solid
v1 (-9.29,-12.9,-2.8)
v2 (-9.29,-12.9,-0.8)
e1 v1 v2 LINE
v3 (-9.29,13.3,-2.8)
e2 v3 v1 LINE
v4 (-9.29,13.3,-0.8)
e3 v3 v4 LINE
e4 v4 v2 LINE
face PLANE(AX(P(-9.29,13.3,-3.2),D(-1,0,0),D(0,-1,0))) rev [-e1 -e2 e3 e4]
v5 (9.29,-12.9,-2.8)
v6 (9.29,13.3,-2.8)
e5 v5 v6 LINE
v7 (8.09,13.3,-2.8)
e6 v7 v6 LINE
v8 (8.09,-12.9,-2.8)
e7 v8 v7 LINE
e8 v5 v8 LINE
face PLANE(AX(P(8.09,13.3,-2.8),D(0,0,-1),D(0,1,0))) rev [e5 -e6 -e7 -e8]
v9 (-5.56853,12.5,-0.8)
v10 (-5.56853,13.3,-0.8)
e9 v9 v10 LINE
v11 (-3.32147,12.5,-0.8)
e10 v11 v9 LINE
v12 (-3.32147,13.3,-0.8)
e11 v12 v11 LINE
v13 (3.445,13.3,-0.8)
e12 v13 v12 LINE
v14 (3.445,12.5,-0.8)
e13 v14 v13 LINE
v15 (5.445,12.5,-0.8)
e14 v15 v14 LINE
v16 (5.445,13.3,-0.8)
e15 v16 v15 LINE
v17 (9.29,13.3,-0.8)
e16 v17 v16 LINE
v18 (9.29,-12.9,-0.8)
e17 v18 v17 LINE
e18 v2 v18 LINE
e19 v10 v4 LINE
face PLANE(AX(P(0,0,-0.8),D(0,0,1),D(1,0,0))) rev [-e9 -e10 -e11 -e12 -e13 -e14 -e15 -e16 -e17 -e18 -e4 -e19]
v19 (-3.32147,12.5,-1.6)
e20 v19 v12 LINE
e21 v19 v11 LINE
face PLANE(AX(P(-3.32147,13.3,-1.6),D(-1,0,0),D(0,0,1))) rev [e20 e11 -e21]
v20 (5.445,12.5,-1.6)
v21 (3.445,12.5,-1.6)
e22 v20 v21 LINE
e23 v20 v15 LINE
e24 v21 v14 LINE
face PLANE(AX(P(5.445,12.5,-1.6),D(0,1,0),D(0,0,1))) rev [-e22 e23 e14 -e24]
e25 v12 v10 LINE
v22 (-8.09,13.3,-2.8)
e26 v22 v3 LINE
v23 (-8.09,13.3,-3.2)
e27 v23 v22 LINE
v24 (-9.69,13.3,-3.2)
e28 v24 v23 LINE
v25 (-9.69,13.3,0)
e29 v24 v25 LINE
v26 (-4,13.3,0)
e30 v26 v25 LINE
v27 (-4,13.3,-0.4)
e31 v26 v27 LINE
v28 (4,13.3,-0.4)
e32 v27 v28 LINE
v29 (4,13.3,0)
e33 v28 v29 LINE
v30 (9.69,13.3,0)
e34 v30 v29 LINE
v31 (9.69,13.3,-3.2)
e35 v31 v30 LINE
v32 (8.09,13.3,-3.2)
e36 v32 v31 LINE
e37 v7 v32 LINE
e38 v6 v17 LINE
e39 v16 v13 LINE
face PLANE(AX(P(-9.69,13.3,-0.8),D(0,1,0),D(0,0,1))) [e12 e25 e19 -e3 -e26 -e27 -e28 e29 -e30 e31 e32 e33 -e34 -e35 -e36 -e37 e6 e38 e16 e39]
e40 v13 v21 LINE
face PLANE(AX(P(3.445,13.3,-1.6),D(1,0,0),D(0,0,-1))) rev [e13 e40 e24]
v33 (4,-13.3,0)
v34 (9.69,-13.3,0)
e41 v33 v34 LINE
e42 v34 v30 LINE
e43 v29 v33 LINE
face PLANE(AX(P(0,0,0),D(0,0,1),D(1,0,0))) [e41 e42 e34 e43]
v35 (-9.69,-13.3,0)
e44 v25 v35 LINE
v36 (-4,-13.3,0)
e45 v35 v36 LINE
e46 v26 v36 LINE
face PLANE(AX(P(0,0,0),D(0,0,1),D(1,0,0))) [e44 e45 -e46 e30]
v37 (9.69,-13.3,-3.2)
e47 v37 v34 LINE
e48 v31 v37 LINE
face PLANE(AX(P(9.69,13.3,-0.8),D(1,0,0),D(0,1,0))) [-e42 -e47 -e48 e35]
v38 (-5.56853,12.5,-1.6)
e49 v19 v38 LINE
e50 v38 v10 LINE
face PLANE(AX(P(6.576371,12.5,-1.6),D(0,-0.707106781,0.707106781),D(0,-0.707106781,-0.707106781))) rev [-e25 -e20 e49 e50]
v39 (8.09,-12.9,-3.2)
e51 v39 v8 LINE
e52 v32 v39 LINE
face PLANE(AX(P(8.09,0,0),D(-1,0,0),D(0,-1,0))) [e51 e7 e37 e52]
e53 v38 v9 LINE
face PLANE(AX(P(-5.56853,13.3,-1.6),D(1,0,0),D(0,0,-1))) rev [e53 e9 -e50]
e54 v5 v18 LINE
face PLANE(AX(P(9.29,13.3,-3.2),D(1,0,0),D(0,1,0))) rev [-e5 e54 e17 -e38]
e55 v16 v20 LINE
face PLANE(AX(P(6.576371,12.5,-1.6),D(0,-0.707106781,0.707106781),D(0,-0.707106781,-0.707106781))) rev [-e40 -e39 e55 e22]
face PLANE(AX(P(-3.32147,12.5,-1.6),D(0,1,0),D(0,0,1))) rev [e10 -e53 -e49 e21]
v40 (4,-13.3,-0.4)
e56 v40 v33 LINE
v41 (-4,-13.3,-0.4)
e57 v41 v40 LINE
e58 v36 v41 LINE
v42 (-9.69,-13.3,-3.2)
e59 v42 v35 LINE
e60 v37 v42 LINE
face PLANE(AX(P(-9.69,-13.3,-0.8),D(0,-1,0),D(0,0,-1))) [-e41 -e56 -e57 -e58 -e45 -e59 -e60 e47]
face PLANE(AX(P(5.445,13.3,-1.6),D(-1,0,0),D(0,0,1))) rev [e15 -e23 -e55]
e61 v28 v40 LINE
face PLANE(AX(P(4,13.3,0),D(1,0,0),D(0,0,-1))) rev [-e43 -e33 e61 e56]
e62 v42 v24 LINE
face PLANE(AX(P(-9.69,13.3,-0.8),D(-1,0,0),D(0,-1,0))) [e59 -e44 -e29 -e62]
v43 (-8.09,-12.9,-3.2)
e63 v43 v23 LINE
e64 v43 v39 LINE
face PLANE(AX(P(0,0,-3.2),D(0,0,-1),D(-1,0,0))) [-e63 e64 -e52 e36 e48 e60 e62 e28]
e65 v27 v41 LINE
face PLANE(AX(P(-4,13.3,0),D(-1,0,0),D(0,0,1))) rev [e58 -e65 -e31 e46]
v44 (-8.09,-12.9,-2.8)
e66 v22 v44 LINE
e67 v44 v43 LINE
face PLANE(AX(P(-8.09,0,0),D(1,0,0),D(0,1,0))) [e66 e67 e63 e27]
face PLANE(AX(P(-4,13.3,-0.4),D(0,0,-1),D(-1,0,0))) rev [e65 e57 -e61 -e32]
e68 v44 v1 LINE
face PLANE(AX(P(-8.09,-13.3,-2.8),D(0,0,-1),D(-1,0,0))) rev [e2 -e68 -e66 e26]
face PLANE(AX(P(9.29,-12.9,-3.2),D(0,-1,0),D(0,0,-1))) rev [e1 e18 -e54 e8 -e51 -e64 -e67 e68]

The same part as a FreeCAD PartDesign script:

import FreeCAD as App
import Part
import Sketcher
Q = App.Units.Quantity


def add_polygon(sketch, points):
    """Adds a closed chain of lines whose ends are joined by coincident constraints."""
    first, n = sketch.GeometryCount, len(points)
    for a, b in zip(points, points[1:] + points[:1]):
        sketch.addGeometry(Part.LineSegment(App.Vector(*a, 0), App.Vector(*b, 0)), False)
    for i in range(n):
        sketch.addConstraint(Sketcher.Constraint("Coincident", first + i, 2, first + (i + 1) % n, 1))

doc = App.newDocument("Part")
params = doc.addObject("Spreadsheet::Sheet", "Params")
for row, (alias, value) in enumerate([
    ("sketch1_height", "26.6 mm"),
    ("sketch1_width", "19.38 mm"),
    ("pad1_length", "0.8 mm"),
    ("sketch2_width", "0.4 mm"),
    ("sketch2_height", "26.6 mm"),
    ("pad2_length", "2.4 mm"),
    ("sketch3_width", "0.4 mm"),
    ("sketch3_height", "26.6 mm"),
    ("pad3_length", "2.4 mm"),
    ("sketch4_width", "8 mm"),
    ("sketch4_height", "0.4 mm"),
    ("sketch5_width", "26.6 mm"),
    ("sketch5_height", "0.4 mm"),
    ("pad4_length", "1.2 mm"),
    ("sketch6_width", "26.6 mm"),
    ("sketch6_height", "0.4 mm"),
    ("pad5_length", "1.2 mm"),
    ("sketch7_height", "0.4 mm"),
    ("sketch7_width", "18.58 mm"),
    ("pad6_length", "2.4 mm"),
    ("sketch8_width", "2 mm"),
    ("sketch8_height", "0.8 mm"),
    ("pad7_length", "0.8 mm"),
    ("sketch9_height", "0.8 mm"),
    ("pad8_length", "0.8 mm"),
    ("sketch10_width", "0.8 mm"),
    ("pocket2_length", "11.01353 mm"),
], start=1):
    params.set(f"A{row}", alias)
    params.set(f"B{row}", "=" + value)
    params.setAlias(f"B{row}", alias)

body = doc.addObject("PartDesign::Body", "Body")

sketch1 = body.newObject("Sketcher::SketchObject", "Sketch")
sketch1.AttachmentSupport = (doc.getObject("XY_Plane"), [""])
sketch1.MapMode = "FlatFace"
add_polygon(sketch1, [(-10, 13), (-10, -13), (10, -13), (10, 13)])
sketch1.addConstraint([
    Sketcher.Constraint("Vertical", 0),
    Sketcher.Constraint("Horizontal", 1),
    Sketcher.Constraint("Vertical", 2),
    Sketcher.Constraint("Horizontal", 3),
    Sketcher.Constraint("Symmetric", 0, 2, 2, 2, -1, 1),
    Sketcher.Constraint("DistanceY", 0, 2, 0, 1, Q("26.6 mm")),
    Sketcher.Constraint("DistanceX", 1, 1, 1, 2, Q("19.38 mm")),
])
sketch1.setExpression("Constraints[9]", "Params.sketch1_height")
sketch1.setExpression("Constraints[10]", "Params.sketch1_width")
pad1 = body.newObject("PartDesign::Pad", "Pad")
pad1.Profile = sketch1
pad1.setExpression("Length", "Params.pad1_length")
pad1.Reversed = True

sketch2 = body.newObject("Sketcher::SketchObject", "Sketch001")
sketch2.AttachmentSupport = (doc.getObject("XY_Plane"), [""])
sketch2.MapMode = "FlatFace"
sketch2.AttachmentOffset = App.Placement(App.Vector(0, 0, -0.8), App.Rotation())
add_polygon(sketch2, [(9.69, 13.3), (9.69, -13.3), (9.29, -13.3), (9.29, 13.3)])
sketch2.addConstraint([
    Sketcher.Constraint("Vertical", 0),
    Sketcher.Constraint("Horizontal", 1),
    Sketcher.Constraint("Vertical", 2),
    Sketcher.Constraint("Horizontal", 3),
    Sketcher.Constraint("DistanceX", 1, 2, 1, 1, Q("0.4 mm")),
    Sketcher.Constraint("DistanceY", 0, 2, 0, 1, Q("26.6 mm")),
    Sketcher.Constraint("DistanceY", 0, 2, -1, 1, Q("13.3 mm")),
    Sketcher.Constraint("DistanceX", -1, 1, 0, 2, Q("9.69 mm")),
])
sketch2.setExpression("Constraints[8]", "Params.sketch2_width")
sketch2.setExpression("Constraints[9]", "Params.sketch2_height")
pad2 = body.newObject("PartDesign::Pad", "Pad001")
pad2.Profile = sketch2
pad2.setExpression("Length", "Params.pad2_length")
pad2.Reversed = True

sketch3 = body.newObject("Sketcher::SketchObject", "Sketch002")
sketch3.AttachmentSupport = (doc.getObject("XY_Plane"), [""])
sketch3.MapMode = "FlatFace"
sketch3.AttachmentOffset = App.Placement(App.Vector(0, 0, -0.8), App.Rotation())
add_polygon(sketch3, [(-9.29, 13.3), (-9.29, -13.3), (-9.69, -13.3), (-9.69, 13.3)])
sketch3.addConstraint([
    Sketcher.Constraint("Vertical", 0),
    Sketcher.Constraint("Horizontal", 1),
    Sketcher.Constraint("Vertical", 2),
    Sketcher.Constraint("Horizontal", 3),
    Sketcher.Constraint("DistanceX", 1, 2, 1, 1, Q("0.4 mm")),
    Sketcher.Constraint("DistanceY", 0, 2, 0, 1, Q("26.6 mm")),
    Sketcher.Constraint("DistanceY", 0, 2, -1, 1, Q("13.3 mm")),
    Sketcher.Constraint("DistanceX", 0, 2, -1, 1, Q("9.29 mm")),
])
sketch3.setExpression("Constraints[8]", "Params.sketch3_width")
sketch3.setExpression("Constraints[9]", "Params.sketch3_height")
pad3 = body.newObject("PartDesign::Pad", "Pad002")
pad3.Profile = sketch3
pad3.setExpression("Length", "Params.pad3_length")
pad3.Reversed = True

sketch4 = body.newObject("Sketcher::SketchObject", "Sketch003")
sketch4.AttachmentSupport = (doc.getObject("XZ_Plane"), [""])
sketch4.MapMode = "FlatFace"
sketch4.AttachmentOffset = App.Placement(App.Vector(0, 0, 13.3), App.Rotation())
add_polygon(sketch4, [(-4, 0), (-4, -0.4), (4, -0.4), (4, 0)])
sketch4.addConstraint([
    Sketcher.Constraint("Vertical", 0),
    Sketcher.Constraint("Horizontal", 1),
    Sketcher.Constraint("Vertical", 2),
    Sketcher.Constraint("Horizontal", 3),
    Sketcher.Constraint("Symmetric", 2, 2, 3, 2, -1, 1),
    Sketcher.Constraint("DistanceX", 1, 1, 1, 2, Q("8 mm")),
    Sketcher.Constraint("DistanceY", 0, 2, 0, 1, Q("0.4 mm")),
])
sketch4.setExpression("Constraints[9]", "Params.sketch4_width")
sketch4.setExpression("Constraints[10]", "Params.sketch4_height")
pocket1 = body.newObject("PartDesign::Pocket", "Pocket")
pocket1.Profile = sketch4
pocket1.Type = "ThroughAll"

sketch5 = body.newObject("Sketcher::SketchObject", "Sketch004")
sketch5.AttachmentSupport = (doc.getObject("YZ_Plane"), [""])
sketch5.MapMode = "FlatFace"
sketch5.AttachmentOffset = App.Placement(App.Vector(0, 0, 9.29), App.Rotation())
add_polygon(sketch5, [(13.3, -3.2), (-13.3, -3.2), (-13.3, -2.8), (13.3, -2.8)])
sketch5.addConstraint([
    Sketcher.Constraint("Horizontal", 0),
    Sketcher.Constraint("Vertical", 1),
    Sketcher.Constraint("Horizontal", 2),
    Sketcher.Constraint("Vertical", 3),
    Sketcher.Constraint("DistanceX", 0, 2, 0, 1, Q("26.6 mm")),
    Sketcher.Constraint("DistanceY", 1, 1, 1, 2, Q("0.4 mm")),
    Sketcher.Constraint("DistanceX", 0, 2, -1, 1, Q("13.3 mm")),
    Sketcher.Constraint("DistanceY", 0, 2, -1, 1, Q("3.2 mm")),
])
sketch5.setExpression("Constraints[8]", "Params.sketch5_width")
sketch5.setExpression("Constraints[9]", "Params.sketch5_height")
pad4 = body.newObject("PartDesign::Pad", "Pad003")
pad4.Profile = sketch5
pad4.setExpression("Length", "Params.pad4_length")
pad4.Reversed = True

sketch6 = body.newObject("Sketcher::SketchObject", "Sketch005")
sketch6.AttachmentSupport = (doc.getObject("YZ_Plane"), [""])
sketch6.MapMode = "FlatFace"
sketch6.AttachmentOffset = App.Placement(App.Vector(0, 0, -9.29), App.Rotation())
add_polygon(sketch6, [(13.3, -2.8), (-13.3, -2.8), (-13.3, -3.2), (13.3, -3.2)])
sketch6.addConstraint([
    Sketcher.Constraint("Horizontal", 0),
    Sketcher.Constraint("Vertical", 1),
    Sketcher.Constraint("Horizontal", 2),
    Sketcher.Constraint("Vertical", 3),
    Sketcher.Constraint("DistanceX", 0, 2, 0, 1, Q("26.6 mm")),
    Sketcher.Constraint("DistanceY", 1, 2, 1, 1, Q("0.4 mm")),
    Sketcher.Constraint("DistanceX", 0, 2, -1, 1, Q("13.3 mm")),
    Sketcher.Constraint("DistanceY", 0, 2, -1, 1, Q("2.8 mm")),
])
sketch6.setExpression("Constraints[8]", "Params.sketch6_width")
sketch6.setExpression("Constraints[9]", "Params.sketch6_height")
pad5 = body.newObject("PartDesign::Pad", "Pad004")
pad5.Profile = sketch6
pad5.setExpression("Length", "Params.pad5_length")

sketch7 = body.newObject("Sketcher::SketchObject", "Sketch006")
sketch7.AttachmentSupport = (doc.getObject("XY_Plane"), [""])
sketch7.MapMode = "FlatFace"
sketch7.AttachmentOffset = App.Placement(App.Vector(0, 0, -0.8), App.Rotation())
add_polygon(sketch7, [(9.29, -12.9), (9.29, -13.3), (-9.29, -13.3), (-9.29, -12.9)])
sketch7.addConstraint([
    Sketcher.Constraint("Vertical", 0),
    Sketcher.Constraint("Horizontal", 1),
    Sketcher.Constraint("Vertical", 2),
    Sketcher.Constraint("Horizontal", 3),
    Sketcher.Constraint("DistanceY", 0, 2, 0, 1, Q("0.4 mm")),
    Sketcher.Constraint("DistanceX", 1, 2, 1, 1, Q("18.58 mm")),
    Sketcher.Constraint("DistanceY", 0, 2, -1, 1, Q("13.3 mm")),
    Sketcher.Constraint("DistanceX", -1, 1, 0, 2, Q("9.29 mm")),
])
sketch7.setExpression("Constraints[8]", "Params.sketch7_height")
sketch7.setExpression("Constraints[9]", "Params.sketch7_width")
pad6 = body.newObject("PartDesign::Pad", "Pad005")
pad6.Profile = sketch7
pad6.setExpression("Length", "Params.pad6_length")
pad6.Reversed = True

sketch8 = body.newObject("Sketcher::SketchObject", "Sketch007")
sketch8.AttachmentSupport = (doc.getObject("XY_Plane"), [""])
sketch8.MapMode = "FlatFace"
sketch8.AttachmentOffset = App.Placement(App.Vector(0, 0, -0.8), App.Rotation())
add_polygon(sketch8, [(5.4, 13.3), (5.4, 12.5), (3.4, 12.5), (3.4, 13.3)])
sketch8.addConstraint([
    Sketcher.Constraint("Vertical", 0),
    Sketcher.Constraint("Horizontal", 1),
    Sketcher.Constraint("Vertical", 2),
    Sketcher.Constraint("Horizontal", 3),
    Sketcher.Constraint("DistanceX", 1, 2, 1, 1, Q("2 mm")),
    Sketcher.Constraint("DistanceY", 0, 2, 0, 1, Q("0.8 mm")),
    Sketcher.Constraint("DistanceY", -1, 1, 0, 2, Q("12.5 mm")),
    Sketcher.Constraint("DistanceX", -1, 1, 0, 2, Q("5.445 mm")),
])
sketch8.setExpression("Constraints[8]", "Params.sketch8_width")
sketch8.setExpression("Constraints[9]", "Params.sketch8_height")
pad7 = body.newObject("PartDesign::Pad", "Pad006")
pad7.Profile = sketch8
pad7.setExpression("Length", "Params.pad7_length")
pad7.Reversed = True

sketch9 = body.newObject("Sketcher::SketchObject", "Sketch008")
sketch9.AttachmentSupport = (doc.getObject("XY_Plane"), [""])
sketch9.MapMode = "FlatFace"
sketch9.AttachmentOffset = App.Placement(App.Vector(0, 0, -0.8), App.Rotation())
add_polygon(sketch9, [(-3.3, 13.3), (-3.3, 12.5), (-5.6, 12.5), (-5.6, 13.3)])
sketch9.addConstraint([
    Sketcher.Constraint("Vertical", 0),
    Sketcher.Constraint("Horizontal", 1),
    Sketcher.Constraint("Vertical", 2),
    Sketcher.Constraint("Horizontal", 3),
    Sketcher.Constraint("DistanceY", 0, 2, 0, 1, Q("0.8 mm")),
    Sketcher.Constraint("DistanceY", -1, 1, 0, 2, Q("12.5 mm")),
    Sketcher.Constraint("DistanceX", 1, 2, 1, 1, Q("2.247059 mm")),
    Sketcher.Constraint("DistanceX", 0, 2, -1, 1, Q("3.32147 mm")),
])
sketch9.setExpression("Constraints[8]", "Params.sketch9_height")
pad8 = body.newObject("PartDesign::Pad", "Pad007")
pad8.Profile = sketch9
pad8.setExpression("Length", "Params.pad8_length")
pad8.Reversed = True

sketch10 = body.newObject("Sketcher::SketchObject", "Sketch009")
sketch10.AttachmentSupport = (doc.getObject("YZ_Plane"), [""])
sketch10.MapMode = "FlatFace"
sketch10.AttachmentOffset = App.Placement(App.Vector(0, 0, -5.56853), App.Rotation())
add_polygon(sketch10, [(12.5, -1.6), (13.3, -0.8), (13.3, -1.6)])
sketch10.addConstraint([
    Sketcher.Constraint("Vertical", 1),
    Sketcher.Constraint("Horizontal", 2),
    Sketcher.Constraint("Equal", 2, 1),
    Sketcher.Constraint("DistanceX", 2, 2, 2, 1, Q("0.8 mm")),
    Sketcher.Constraint("DistanceX", -1, 1, 0, 2, Q("13.3 mm")),
    Sketcher.Constraint("DistanceY", 0, 2, -1, 1, Q("0.8 mm")),
])
sketch10.setExpression("Constraints[6]", "Params.sketch10_width")
pocket2 = body.newObject("PartDesign::Pocket", "Pocket001")
pocket2.Profile = sketch10
pocket2.setExpression("Length", "Params.pocket2_length")
pocket2.Reversed = True

doc.recompute()
